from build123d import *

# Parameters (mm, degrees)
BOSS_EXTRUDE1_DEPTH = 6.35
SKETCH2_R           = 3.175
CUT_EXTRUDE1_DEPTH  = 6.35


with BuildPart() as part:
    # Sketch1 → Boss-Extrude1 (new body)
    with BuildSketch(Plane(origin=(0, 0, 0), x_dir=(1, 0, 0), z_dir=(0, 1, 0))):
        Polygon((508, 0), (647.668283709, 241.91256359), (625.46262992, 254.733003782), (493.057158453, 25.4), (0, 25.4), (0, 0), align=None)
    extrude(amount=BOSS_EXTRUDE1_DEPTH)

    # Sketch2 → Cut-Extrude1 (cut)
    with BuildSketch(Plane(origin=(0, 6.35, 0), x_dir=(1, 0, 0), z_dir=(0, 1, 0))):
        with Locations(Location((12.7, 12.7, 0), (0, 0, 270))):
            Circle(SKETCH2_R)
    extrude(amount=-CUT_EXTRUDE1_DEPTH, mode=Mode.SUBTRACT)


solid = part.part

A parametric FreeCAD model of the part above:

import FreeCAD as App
import Part
import Sketcher
Q = App.Units.Quantity

doc = App.newDocument("Part")
body = doc.addObject("PartDesign::Body", "Body")

# Sketch on XZ plane
sketch1 = body.newObject("Sketcher::SketchObject", "Sketch")
sketch1.AttachmentSupport = (doc.getObject("XZ_Plane"), [""])
sketch1.MapMode = "FlatFace"
sketch1.addGeometry([
    Part.LineSegment(App.Vector(508, 0, 0), App.Vector(647.668284, -241.912564, 0)),  # 0
    Part.LineSegment(App.Vector(647.668284, -241.912564, 0), App.Vector(625.46263, -254.733004, 0)),  # 1
    Part.LineSegment(App.Vector(625.46263, -254.733004, 0), App.Vector(493.057158, -25.4, 0)),  # 2
    Part.LineSegment(App.Vector(493.057158, -25.4, 0), App.Vector(0, -25.4, 0)),  # 3
    Part.LineSegment(App.Vector(0, -25.4, 0), App.Vector(0, 0, 0)),  # 4
    Part.LineSegment(App.Vector(0, 0, 0), App.Vector(508, 0, 0)),  # 5
], False)
sketch1.addConstraint([
    Sketcher.Constraint("Coincident", 0, 2, 1, 1),
    Sketcher.Constraint("Coincident", 1, 2, 2, 1),
    Sketcher.Constraint("Coincident", 2, 2, 3, 1),
    Sketcher.Constraint("Coincident", 3, 2, 4, 1),
    Sketcher.Constraint("Coincident", 4, 2, 5, 1),
    Sketcher.Constraint("Coincident", 5, 2, 0, 1),
    Sketcher.Constraint("Horizontal", 3),
    Sketcher.Constraint("Vertical", 4),
    Sketcher.Constraint("Horizontal", 5),
    Sketcher.Constraint("Coincident", 4, 2, -1, 1),
    Sketcher.Constraint("Perpendicular", 0, 1),
    Sketcher.Constraint("Perpendicular", 1, 2),
    Sketcher.Constraint("DistanceX", 5, 1, 5, 2, Q("20 in")),
    Sketcher.Constraint("DistanceY", 4, 1, 4, 2, Q("1 in")),
    Sketcher.Constraint("Angle", 0, Q("-60 deg")),
    Sketcher.Constraint("DistanceX", 3, 2, 3, 1, Q("493.057158 mm")),
    Sketcher.Constraint("DistanceX", -1, 1, 1, 2, Q("625.46263 mm")),
])
pad1 = body.newObject("PartDesign::Pad", "Pad")
pad1.Profile = sketch1
pad1.Length = Q("0.25 in")
pad1.Reversed = True

# Sketch on XZ plane
sketch2 = body.newObject("Sketcher::SketchObject", "Sketch001")
sketch2.AttachmentSupport = (doc.getObject("XZ_Plane"), [""])
sketch2.MapMode = "FlatFace"
sketch2.AttachmentOffset = App.Placement(App.Vector(0, 0, -0.25 * 25.4), App.Rotation())
sketch2.addGeometry(Part.Circle(App.Vector(12.7, -12.7, 0), App.Vector(0, 0, 1), 3.175), False)
sketch2.addConstraint([
    Sketcher.Constraint("Diameter", 0, Q("0.25 in")),
    Sketcher.Constraint("DistanceX", -1, 1, 0, 3, Q("0.5 in")),
    Sketcher.Constraint("DistanceY", 0, 3, -1, 1, Q("0.5 in")),
])
pocket1 = body.newObject("PartDesign::Pocket", "Pocket")
pocket1.Profile = sketch2
pocket1.Length = Q("0.25 in")
pocket1.Reversed = True

doc.recompute()
